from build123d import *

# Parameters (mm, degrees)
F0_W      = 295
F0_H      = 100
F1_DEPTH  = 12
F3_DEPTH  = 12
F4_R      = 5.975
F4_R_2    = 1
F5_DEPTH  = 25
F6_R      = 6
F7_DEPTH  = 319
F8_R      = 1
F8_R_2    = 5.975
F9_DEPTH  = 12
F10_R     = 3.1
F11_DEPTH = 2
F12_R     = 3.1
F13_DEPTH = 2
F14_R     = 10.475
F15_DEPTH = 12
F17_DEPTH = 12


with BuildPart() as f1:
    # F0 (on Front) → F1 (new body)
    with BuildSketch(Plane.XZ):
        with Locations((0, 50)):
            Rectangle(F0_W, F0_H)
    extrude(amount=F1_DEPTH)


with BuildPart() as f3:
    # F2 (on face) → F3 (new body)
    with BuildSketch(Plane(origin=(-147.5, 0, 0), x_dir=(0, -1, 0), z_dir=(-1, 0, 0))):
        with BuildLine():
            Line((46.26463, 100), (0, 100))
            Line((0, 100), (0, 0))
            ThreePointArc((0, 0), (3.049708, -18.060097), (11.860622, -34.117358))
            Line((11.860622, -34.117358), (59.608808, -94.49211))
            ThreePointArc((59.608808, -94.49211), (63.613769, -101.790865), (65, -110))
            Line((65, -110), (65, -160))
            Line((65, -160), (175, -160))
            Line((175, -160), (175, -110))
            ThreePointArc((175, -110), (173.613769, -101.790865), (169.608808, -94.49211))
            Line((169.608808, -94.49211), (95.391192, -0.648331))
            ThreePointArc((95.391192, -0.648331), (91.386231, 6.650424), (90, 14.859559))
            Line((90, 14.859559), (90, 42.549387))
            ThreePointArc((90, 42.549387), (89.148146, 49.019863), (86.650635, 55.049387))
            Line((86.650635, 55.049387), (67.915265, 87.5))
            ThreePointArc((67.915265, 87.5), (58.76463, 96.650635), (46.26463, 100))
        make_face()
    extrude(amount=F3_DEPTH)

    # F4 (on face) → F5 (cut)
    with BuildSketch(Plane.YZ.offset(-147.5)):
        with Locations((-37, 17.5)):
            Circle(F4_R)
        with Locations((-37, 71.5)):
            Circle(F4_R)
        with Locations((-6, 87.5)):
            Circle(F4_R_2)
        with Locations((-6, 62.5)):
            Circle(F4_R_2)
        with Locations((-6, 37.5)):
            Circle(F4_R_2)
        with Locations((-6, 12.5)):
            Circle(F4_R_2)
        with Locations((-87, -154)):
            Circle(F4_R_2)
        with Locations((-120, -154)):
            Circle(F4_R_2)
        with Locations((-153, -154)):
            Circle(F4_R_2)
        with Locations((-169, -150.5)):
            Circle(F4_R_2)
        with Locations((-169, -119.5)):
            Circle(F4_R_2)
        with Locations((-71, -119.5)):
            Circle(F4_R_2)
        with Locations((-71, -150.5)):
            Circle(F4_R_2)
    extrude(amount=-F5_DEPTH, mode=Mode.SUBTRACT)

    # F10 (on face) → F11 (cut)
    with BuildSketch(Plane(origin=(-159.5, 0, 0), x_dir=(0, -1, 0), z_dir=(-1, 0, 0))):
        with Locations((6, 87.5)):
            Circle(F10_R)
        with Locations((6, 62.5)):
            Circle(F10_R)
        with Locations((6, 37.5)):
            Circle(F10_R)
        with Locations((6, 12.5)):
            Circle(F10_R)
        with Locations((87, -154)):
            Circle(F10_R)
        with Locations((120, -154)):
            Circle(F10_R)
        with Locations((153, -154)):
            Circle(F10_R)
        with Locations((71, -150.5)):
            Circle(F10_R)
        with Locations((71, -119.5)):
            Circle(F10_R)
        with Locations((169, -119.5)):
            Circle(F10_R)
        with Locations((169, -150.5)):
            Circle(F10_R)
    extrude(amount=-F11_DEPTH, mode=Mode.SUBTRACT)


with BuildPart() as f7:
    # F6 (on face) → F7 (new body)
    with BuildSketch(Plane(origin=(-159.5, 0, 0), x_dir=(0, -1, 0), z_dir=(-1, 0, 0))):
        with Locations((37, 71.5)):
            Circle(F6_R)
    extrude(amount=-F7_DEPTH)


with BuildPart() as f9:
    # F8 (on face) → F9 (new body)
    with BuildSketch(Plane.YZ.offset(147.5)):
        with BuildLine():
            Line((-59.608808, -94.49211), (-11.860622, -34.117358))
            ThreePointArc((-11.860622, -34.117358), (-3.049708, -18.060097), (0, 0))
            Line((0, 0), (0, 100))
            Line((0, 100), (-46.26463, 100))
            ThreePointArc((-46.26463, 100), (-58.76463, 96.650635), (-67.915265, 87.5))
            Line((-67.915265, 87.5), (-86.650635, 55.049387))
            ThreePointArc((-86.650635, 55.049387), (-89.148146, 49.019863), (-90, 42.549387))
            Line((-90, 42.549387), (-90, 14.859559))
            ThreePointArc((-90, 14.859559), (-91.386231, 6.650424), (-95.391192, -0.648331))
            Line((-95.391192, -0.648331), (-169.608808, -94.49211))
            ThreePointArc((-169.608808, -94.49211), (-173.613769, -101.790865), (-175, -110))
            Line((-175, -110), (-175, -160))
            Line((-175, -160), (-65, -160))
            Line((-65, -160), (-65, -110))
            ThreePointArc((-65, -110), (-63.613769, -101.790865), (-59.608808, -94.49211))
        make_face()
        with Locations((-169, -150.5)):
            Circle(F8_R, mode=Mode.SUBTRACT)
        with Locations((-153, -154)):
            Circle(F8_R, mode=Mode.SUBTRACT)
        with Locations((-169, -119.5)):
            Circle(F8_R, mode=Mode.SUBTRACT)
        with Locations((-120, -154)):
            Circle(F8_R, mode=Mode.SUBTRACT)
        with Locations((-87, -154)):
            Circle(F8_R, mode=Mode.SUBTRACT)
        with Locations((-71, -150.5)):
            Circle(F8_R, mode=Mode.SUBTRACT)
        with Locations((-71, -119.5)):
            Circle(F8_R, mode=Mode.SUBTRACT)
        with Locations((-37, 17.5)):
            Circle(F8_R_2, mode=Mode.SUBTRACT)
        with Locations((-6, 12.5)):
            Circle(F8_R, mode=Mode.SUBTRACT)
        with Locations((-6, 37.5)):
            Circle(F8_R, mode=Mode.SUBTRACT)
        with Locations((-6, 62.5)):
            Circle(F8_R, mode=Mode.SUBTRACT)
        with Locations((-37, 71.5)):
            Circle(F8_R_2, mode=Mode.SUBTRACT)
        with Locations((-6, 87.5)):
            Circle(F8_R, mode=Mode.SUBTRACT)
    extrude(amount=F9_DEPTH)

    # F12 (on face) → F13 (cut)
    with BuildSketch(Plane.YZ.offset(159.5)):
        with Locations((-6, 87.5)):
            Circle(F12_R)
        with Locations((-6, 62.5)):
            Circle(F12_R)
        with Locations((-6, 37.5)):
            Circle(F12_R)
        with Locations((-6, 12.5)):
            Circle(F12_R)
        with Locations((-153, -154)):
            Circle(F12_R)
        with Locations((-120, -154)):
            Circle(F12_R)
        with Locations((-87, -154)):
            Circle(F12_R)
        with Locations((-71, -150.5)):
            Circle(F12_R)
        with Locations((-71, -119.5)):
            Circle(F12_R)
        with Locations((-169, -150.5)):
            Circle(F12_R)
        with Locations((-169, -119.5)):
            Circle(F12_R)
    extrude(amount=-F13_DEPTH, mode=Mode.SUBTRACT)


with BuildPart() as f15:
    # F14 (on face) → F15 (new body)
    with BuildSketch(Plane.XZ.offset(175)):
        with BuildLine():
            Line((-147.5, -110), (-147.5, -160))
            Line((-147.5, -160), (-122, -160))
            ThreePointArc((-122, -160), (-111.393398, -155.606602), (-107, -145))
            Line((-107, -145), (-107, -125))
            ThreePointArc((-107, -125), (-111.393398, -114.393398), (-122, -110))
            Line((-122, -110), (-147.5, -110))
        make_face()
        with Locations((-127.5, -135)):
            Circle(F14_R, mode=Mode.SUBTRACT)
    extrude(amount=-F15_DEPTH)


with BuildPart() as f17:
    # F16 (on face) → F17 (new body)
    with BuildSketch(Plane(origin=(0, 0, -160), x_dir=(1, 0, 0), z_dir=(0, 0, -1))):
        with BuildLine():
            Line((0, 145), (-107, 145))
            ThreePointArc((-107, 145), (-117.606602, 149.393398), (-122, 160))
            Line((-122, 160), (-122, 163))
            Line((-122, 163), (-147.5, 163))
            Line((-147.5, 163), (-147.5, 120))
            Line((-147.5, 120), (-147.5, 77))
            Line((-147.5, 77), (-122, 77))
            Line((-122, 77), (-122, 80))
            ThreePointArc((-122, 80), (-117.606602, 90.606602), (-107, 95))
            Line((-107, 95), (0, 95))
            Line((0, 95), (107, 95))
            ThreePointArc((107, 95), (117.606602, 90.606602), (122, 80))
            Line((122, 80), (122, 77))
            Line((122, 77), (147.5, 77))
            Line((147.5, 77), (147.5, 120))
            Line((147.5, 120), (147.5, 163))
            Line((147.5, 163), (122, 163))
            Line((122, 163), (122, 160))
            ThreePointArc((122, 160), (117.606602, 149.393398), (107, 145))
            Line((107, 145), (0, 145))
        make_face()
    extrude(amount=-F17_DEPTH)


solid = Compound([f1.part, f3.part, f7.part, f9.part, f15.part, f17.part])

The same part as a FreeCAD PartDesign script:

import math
import FreeCAD as App
import Part
import Sketcher
from FreeCAD import Vector
Q = App.Units.Quantity


def add_polygon(sketch, points):
    """Adds a closed chain of lines whose ends are joined by coincident constraints."""
    first, n = sketch.GeometryCount, len(points)
    for a, b in zip(points, points[1:] + points[:1]):
        sketch.addGeometry(Part.LineSegment(App.Vector(*a, 0), App.Vector(*b, 0)), False)
    for i in range(n):
        sketch.addConstraint(Sketcher.Constraint("Coincident", first + i, 2, first + (i + 1) % n, 1))

doc = App.newDocument("Part")
body = doc.addObject("PartDesign::Body", "Body")

# Sketch on XZ plane
sketch1 = body.newObject("Sketcher::SketchObject", "Sketch")
sketch1.AttachmentSupport = (doc.getObject("XZ_Plane"), [""])
sketch1.MapMode = "FlatFace"
add_polygon(sketch1, [(-148, 100), (-148, 0), (148, 0), (148, 100)])  # lines 0-3
sketch1.addConstraint([
    Sketcher.Constraint("Vertical", 0),
    Sketcher.Constraint("Horizontal", 1),
    Sketcher.Constraint("Vertical", 2),
    Sketcher.Constraint("Horizontal", 3),
    Sketcher.Constraint("Symmetric", 0, 2, 1, 2, -1, 1),
    Sketcher.Constraint("DistanceX", 1, 1, 1, 2, Q("295 mm")),
    Sketcher.Constraint("DistanceY", 0, 2, 0, 1, Q("100 mm")),
])
pad1 = body.newObject("PartDesign::Pad", "Pad")
pad1.Profile = sketch1
pad1.Length = 12
body2 = doc.addObject("PartDesign::Body", "Body001")

# Sketch on YZ plane
sketch2 = body2.newObject("Sketcher::SketchObject", "Sketch001")
sketch2.AttachmentSupport = (doc.getObject("YZ_Plane001"), [""])
sketch2.MapMode = "FlatFace"
sketch2.AttachmentOffset = App.Placement(Vector(0, 0, -147.5), App.Rotation())
sketch2.addGeometry([
    Part.LineSegment(Vector(-46, 100, 0), Vector(0, 100, 0)),  # 0
    Part.LineSegment(Vector(0, 100, 0), Vector(0, 0, 0)),  # 1
    Part.ArcOfCircle(Part.Circle(Vector(-55, 0, 0), Vector(0, 0, 1), 55), math.radians(-38), math.radians(0)),  # 2
    Part.LineSegment(Vector(-12, -34, 0), Vector(-60, -94, 0)),  # 3
    Part.ArcOfCircle(Part.Circle(Vector(-40, -110, 0), Vector(0, 0, 1), 25), math.radians(142), math.radians(180)),  # 4
    Part.LineSegment(Vector(-65, -110, 0), Vector(-65, -160, 0)),  # 5
    Part.LineSegment(Vector(-65, -160, 0), Vector(-175, -160, 0)),  # 6
    Part.LineSegment(Vector(-175, -160, 0), Vector(-175, -110, 0)),  # 7
    Part.ArcOfCircle(Part.Circle(Vector(-150, -110, 0), Vector(0, 0, 1), 25), math.radians(142), math.radians(180)),  # 8
    Part.LineSegment(Vector(-170, -94, 0), Vector(-95, -1, 0)),  # 9
    Part.ArcOfCircle(Part.Circle(Vector(-115, 15, 0), Vector(0, 0, 1), 25), math.radians(-38), math.radians(0)),  # 10
    Part.LineSegment(Vector(-90, 15, 0), Vector(-90, 43, 0)),  # 11
    Part.ArcOfCircle(Part.Circle(Vector(-65, 43, 0), Vector(0, 0, 1), 25), math.radians(150), math.radians(180)),  # 12
    Part.LineSegment(Vector(-87, 55, 0), Vector(-68, 88, 0)),  # 13
    Part.ArcOfCircle(Part.Circle(Vector(-46, 75, 0), Vector(0, 0, 1), 25), math.radians(90), math.radians(150)),  # 14
], False)
sketch2.addConstraint([
    Sketcher.Constraint("Coincident", 0, 2, 1, 1),
    Sketcher.Constraint("Tangent", 1, 2, 2, 2),
    Sketcher.Constraint("Tangent", 2, 1, 3, 1),
    Sketcher.Constraint("Tangent", 3, 2, 4, 1),
    Sketcher.Constraint("Tangent", 4, 2, 5, 1),
    Sketcher.Constraint("Coincident", 5, 2, 6, 1),
    Sketcher.Constraint("Coincident", 6, 2, 7, 1),
    Sketcher.Constraint("Tangent", 7, 2, 8, 2),
    Sketcher.Constraint("Tangent", 8, 1, 9, 1),
    Sketcher.Constraint("Tangent", 9, 2, 10, 1),
    Sketcher.Constraint("Tangent", 10, 2, 11, 1),
    Sketcher.Constraint("Tangent", 11, 2, 12, 2),
    Sketcher.Constraint("Tangent", 12, 1, 13, 1),
    Sketcher.Constraint("Tangent", 13, 2, 14, 2),
    Sketcher.Constraint("Tangent", 14, 1, 0, 1),
    Sketcher.Constraint("Horizontal", 0),
    Sketcher.Constraint("Vertical", 1),
    Sketcher.Constraint("Vertical", 5),
    Sketcher.Constraint("Horizontal", 6),
    Sketcher.Constraint("Vertical", 7),
    Sketcher.Constraint("Vertical", 11),
    Sketcher.Constraint("Coincident", 1, 2, -1, 1),
    Sketcher.Constraint("Equal", 4, 8),
    Sketcher.Constraint("Equal", 8, 10),
    Sketcher.Constraint("Parallel", 3, 9),
    Sketcher.Constraint("Horizontal", 4, 3, 8, 3),
    Sketcher.Constraint("Radius", 14, Q("25 mm")),
    Sketcher.Constraint("DistanceX", 6, 2, 6, 1, Q("110 mm")),
    Sketcher.Constraint("DistanceY", 1, 2, 1, 1, Q("100 mm")),
    Sketcher.Constraint("DistanceY", 5, 2, 5, 1, Q("50 mm")),
    Sketcher.Constraint("Angle", 13, Q("60 deg")),
    Sketcher.Constraint("DistanceX", 4, 2, -1, 1, Q("65 mm")),
    Sketcher.Constraint("DistanceY", 4, 2, -1, 1, Q("110 mm")),
    Sketcher.Constraint("DistanceX", 10, 2, -1, 1, Q("90 mm")),
    Sketcher.Constraint("DistanceY", 11, 2, 12, 1, Q("12.5 mm")),
    Sketcher.Constraint("Radius", 2, Q("55.000013 mm")),
    Sketcher.Constraint("Radius", 4, Q("25.000006 mm")),
    Sketcher.Constraint("DistanceX", 0, 1, 0, 2, Q("46.26463 mm")),
])
pad2 = body2.newObject("PartDesign::Pad", "Pad001")
pad2.Profile = sketch2
pad2.Length = 12
pad2.Reversed = True

# Sketch on YZ plane
sketch3 = body2.newObject("Sketcher::SketchObject", "Sketch002")
sketch3.AttachmentSupport = (doc.getObject("YZ_Plane001"), [""])
sketch3.MapMode = "FlatFace"
sketch3.AttachmentOffset = App.Placement(Vector(0, 0, -147.5), App.Rotation())
sketch3.addGeometry([
    Part.Circle(Vector(-37, 17.5, 0), Vector(0, 0, 1), 6),  # 0
    Part.Circle(Vector(-37, 71.5, 0), Vector(0, 0, 1), 6),  # 1
    Part.Circle(Vector(-6, 87.5, 0), Vector(0, 0, 1), 1),  # 2
    Part.Circle(Vector(-6, 62.5, 0), Vector(0, 0, 1), 1),  # 3
    Part.Circle(Vector(-6, 37.5, 0), Vector(0, 0, 1), 1),  # 4
    Part.Circle(Vector(-6, 12.5, 0), Vector(0, 0, 1), 1),  # 5
    Part.Circle(Vector(-87, -154, 0), Vector(0, 0, 1), 1),  # 6
    Part.Circle(Vector(-120, -154, 0), Vector(0, 0, 1), 1),  # 7
    Part.Circle(Vector(-153, -154, 0), Vector(0, 0, 1), 1),  # 8
    Part.Circle(Vector(-169, -150.5, 0), Vector(0, 0, 1), 1),  # 9
    Part.Circle(Vector(-169, -119.5, 0), Vector(0, 0, 1), 1),  # 10
    Part.Circle(Vector(-71, -119.5, 0), Vector(0, 0, 1), 1),  # 11
    Part.Circle(Vector(-71, -150.5, 0), Vector(0, 0, 1), 1),  # 12
], False)
sketch3.addConstraint([
    Sketcher.Constraint("Equal", 0, 1),
    Sketcher.Constraint("Equal", 2, 3),
    Sketcher.Constraint("Equal", 3, 4),
    Sketcher.Constraint("Equal", 4, 5),
    Sketcher.Constraint("Equal", 5, 6),
    Sketcher.Constraint("Equal", 6, 7),
    Sketcher.Constraint("Equal", 7, 8),
    Sketcher.Constraint("Equal", 8, 9),
    Sketcher.Constraint("Equal", 9, 10),
    Sketcher.Constraint("Equal", 10, 11),
    Sketcher.Constraint("Equal", 11, 12),
    Sketcher.Constraint("Horizontal", 6, 3, 7, 3),
    Sketcher.Constraint("Horizontal", 7, 3, 8, 3),
    Sketcher.Constraint("Horizontal", 10, 3, 11, 3),
    Sketcher.Constraint("Horizontal", 9, 3, 12, 3),
    Sketcher.Constraint("Vertical", 0, 3, 1, 3),
    Sketcher.Constraint("Vertical", 2, 3, 3, 3),
    Sketcher.Constraint("Vertical", 3, 3, 4, 3),
    Sketcher.Constraint("Vertical", 4, 3, 5, 3),
    Sketcher.Constraint("Vertical", 9, 3, 10, 3),
    Sketcher.Constraint("Vertical", 11, 3, 12, 3),
    Sketcher.Constraint("Diameter", 2, Q("2 mm")),
    Sketcher.Constraint("Diameter", 0, Q("11.95 mm")),
    Sketcher.Constraint("DistanceX", 0, 3, -1, 1, Q("37 mm")),
    Sketcher.Constraint("DistanceX", 2, 3, -1, 1, Q("6 mm")),
    Sketcher.Constraint("DistanceX", 6, 3, -1, 1, Q("87 mm")),
    Sketcher.Constraint("DistanceY", 6, 3, -1, 1, Q("154 mm")),
    Sketcher.Constraint("DistanceX", 7, 3, -1, 1, Q("120 mm")),
    Sketcher.Constraint("DistanceX", 8, 3, -1, 1, Q("153 mm")),
    Sketcher.Constraint("DistanceX", 9, 3, -1, 1, Q("169 mm")),
    Sketcher.Constraint("DistanceX", 11, 3, -1, 1, Q("71 mm")),
    Sketcher.Constraint("DistanceY", 0, 3, 1, 3, Q("54 mm")),
    Sketcher.Constraint("DistanceY", 1, 3, 2, 3, Q("16 mm")),
    Sketcher.Constraint("DistanceY", 3, 3, 2, 3, Q("25 mm")),
    Sketcher.Constraint("DistanceY", 4, 3, 3, 3, Q("25 mm")),
    Sketcher.Constraint("DistanceY", 5, 3, 4, 3, Q("25 mm")),
    Sketcher.Constraint("DistanceY", 9, 3, 0, 3, Q("168 mm")),
    Sketcher.Constraint("DistanceY", 9, 3, 10, 3, Q("31 mm")),
    Sketcher.Constraint("DistanceY", -1, 1, 0, 3, Q("17.5 mm")),
])
pocket1 = body2.newObject("PartDesign::Pocket", "Pocket")
pocket1.Profile = sketch3
pocket1.Length = 25

# Sketch on YZ plane
sketch4 = body2.newObject("Sketcher::SketchObject", "Sketch003")
sketch4.AttachmentSupport = (doc.getObject("YZ_Plane001"), [""])
sketch4.MapMode = "FlatFace"
sketch4.AttachmentOffset = App.Placement(Vector(0, 0, -159.5), App.Rotation())
sketch4.addGeometry([
    Part.Circle(Vector(-6, 87.5, 0), Vector(0, 0, 1), 3.1),  # 0
    Part.Circle(Vector(-6, 62.5, 0), Vector(0, 0, 1), 3.1),  # 1
    Part.Circle(Vector(-6, 37.5, 0), Vector(0, 0, 1), 3.1),  # 2
    Part.Circle(Vector(-6, 12.5, 0), Vector(0, 0, 1), 3.1),  # 3
    Part.Circle(Vector(-87, -154, 0), Vector(0, 0, 1), 3.1),  # 4
    Part.Circle(Vector(-120, -154, 0), Vector(0, 0, 1), 3.1),  # 5
    Part.Circle(Vector(-153, -154, 0), Vector(0, 0, 1), 3.1),  # 6
    Part.Circle(Vector(-71, -150.5, 0), Vector(0, 0, 1), 3.1),  # 7
    Part.Circle(Vector(-71, -119.5, 0), Vector(0, 0, 1), 3.1),  # 8
    Part.Circle(Vector(-169, -119.5, 0), Vector(0, 0, 1), 3.1),  # 9
    Part.Circle(Vector(-169, -150.5, 0), Vector(0, 0, 1), 3.1),  # 10
], False)
sketch4.addConstraint([
    Sketcher.Constraint("Equal", 0, 1),
    Sketcher.Constraint("Equal", 1, 2),
    Sketcher.Constraint("Equal", 2, 3),
    Sketcher.Constraint("Equal", 3, 4),
    Sketcher.Constraint("Equal", 4, 5),
    Sketcher.Constraint("Equal", 5, 6),
    Sketcher.Constraint("Equal", 6, 7),
    Sketcher.Constraint("Equal", 7, 8),
    Sketcher.Constraint("Equal", 8, 9),
    Sketcher.Constraint("Equal", 9, 10),
    Sketcher.Constraint("Horizontal", 4, 3, 5, 3),
    Sketcher.Constraint("Horizontal", 5, 3, 6, 3),
    Sketcher.Constraint("Horizontal", 8, 3, 9, 3),
    Sketcher.Constraint("Horizontal", 7, 3, 10, 3),
    Sketcher.Constraint("Vertical", 0, 3, 1, 3),
    Sketcher.Constraint("Vertical", 1, 3, 2, 3),
    Sketcher.Constraint("Vertical", 2, 3, 3, 3),
    Sketcher.Constraint("Vertical", 7, 3, 8, 3),
    Sketcher.Constraint("Vertical", 9, 3, 10, 3),
    Sketcher.Constraint("Diameter", 0, Q("6.2 mm")),
    Sketcher.Constraint("DistanceX", 0, 3, -1, 1, Q("6 mm")),
    Sketcher.Constraint("DistanceX", 4, 3, -1, 1, Q("87 mm")),
    Sketcher.Constraint("DistanceY", 4, 3, -1, 1, Q("154 mm")),
    Sketcher.Constraint("DistanceX", 5, 3, -1, 1, Q("120 mm")),
    Sketcher.Constraint("DistanceX", 6, 3, -1, 1, Q("153 mm")),
    Sketcher.Constraint("DistanceX", 7, 3, -1, 1, Q("71 mm")),
    Sketcher.Constraint("DistanceX", 9, 3, -1, 1, Q("169 mm")),
    Sketcher.Constraint("DistanceY", 1, 3, 0, 3, Q("25 mm")),
    Sketcher.Constraint("DistanceY", 2, 3, 1, 3, Q("25 mm")),
    Sketcher.Constraint("DistanceY", 3, 3, 2, 3, Q("25 mm")),
    Sketcher.Constraint("DistanceY", 7, 3, 3, 3, Q("163 mm")),
    Sketcher.Constraint("DistanceY", 7, 3, 8, 3, Q("31 mm")),
    Sketcher.Constraint("DistanceY", -1, 1, 0, 3, Q("87.5 mm")),
])
pocket2 = body2.newObject("PartDesign::Pocket", "Pocket001")
pocket2.Profile = sketch4
pocket2.Length = 2
pocket2.Reversed = True
body3 = doc.addObject("PartDesign::Body", "Body002")

# Sketch on YZ plane
sketch5 = body3.newObject("Sketcher::SketchObject", "Sketch004")
sketch5.AttachmentSupport = (doc.getObject("YZ_Plane002"), [""])
sketch5.MapMode = "FlatFace"
sketch5.AttachmentOffset = App.Placement(Vector(0, 0, -159.5), App.Rotation())
sketch5.addGeometry(Part.Circle(Vector(-37, 72, 0), Vector(0, 0, 1), 6), False)
sketch5.addConstraint([
    Sketcher.Constraint("Diameter", 0, Q("12 mm")),
    Sketcher.Constraint("DistanceX", 0, 3, -1, 1, Q("37 mm")),
    Sketcher.Constraint("DistanceY", -1, 1, 0, 3, Q("71.5 mm")),
])
pad3 = body3.newObject("PartDesign::Pad", "Pad002")
pad3.Profile = sketch5
pad3.Length = 319
body4 = doc.addObject("PartDesign::Body", "Body003")

# Sketch on YZ plane
sketch6 = body4.newObject("Sketcher::SketchObject", "Sketch005")
sketch6.AttachmentSupport = (doc.getObject("YZ_Plane003"), [""])
sketch6.MapMode = "FlatFace"
sketch6.AttachmentOffset = App.Placement(Vector(0, 0, 147.5), App.Rotation())
sketch6.addGeometry([
    Part.LineSegment(Vector(-59.6, -94.5, 0), Vector(-11.9, -34.1, 0)),  # 0
    Part.ArcOfCircle(Part.Circle(Vector(-55, 0, 0), Vector(0, 0, 1), 55), math.radians(-38), math.radians(0)),  # 1
    Part.LineSegment(Vector(0, 0, 0), Vector(0, 100, 0)),  # 2
    Part.LineSegment(Vector(0, 100, 0), Vector(-46.3, 100, 0)),  # 3
    Part.ArcOfCircle(Part.Circle(Vector(-46.3, 75, 0), Vector(0, 0, 1), 25), math.radians(90), math.radians(150)),  # 4
    Part.LineSegment(Vector(-67.9, 87.5, 0), Vector(-86.7, 55, 0)),  # 5
    Part.ArcOfCircle(Part.Circle(Vector(-65, 42.5, 0), Vector(0, 0, 1), 25), math.radians(150), math.radians(180)),  # 6
    Part.LineSegment(Vector(-90, 42.5, 0), Vector(-90, 14.9, 0)),  # 7
    Part.ArcOfCircle(Part.Circle(Vector(-115, 14.9, 0), Vector(0, 0, 1), 25), math.radians(-38), math.radians(0)),  # 8
    Part.LineSegment(Vector(-95.4, -0.6, 0), Vector(-169.6, -94.5, 0)),  # 9
    Part.ArcOfCircle(Part.Circle(Vector(-150, -110, 0), Vector(0, 0, 1), 25), math.radians(142), math.radians(180)),  # 10
    Part.LineSegment(Vector(-175, -110, 0), Vector(-175, -160, 0)),  # 11
    Part.LineSegment(Vector(-175, -160, 0), Vector(-65, -160, 0)),  # 12
    Part.LineSegment(Vector(-65, -160, 0), Vector(-65, -110, 0)),  # 13
    Part.ArcOfCircle(Part.Circle(Vector(-40, -110, 0), Vector(0, 0, 1), 25), math.radians(142), math.radians(180)),  # 14
    Part.Circle(Vector(-169, -150.5, 0), Vector(0, 0, 1), 1),  # 15
    Part.Circle(Vector(-153, -154, 0), Vector(0, 0, 1), 1),  # 16
    Part.Circle(Vector(-169, -119.5, 0), Vector(0, 0, 1), 1),  # 17
    Part.Circle(Vector(-120, -154, 0), Vector(0, 0, 1), 1),  # 18
    Part.Circle(Vector(-87, -154, 0), Vector(0, 0, 1), 1),  # 19
    Part.Circle(Vector(-71, -150.5, 0), Vector(0, 0, 1), 1),  # 20
    Part.Circle(Vector(-71, -119.5, 0), Vector(0, 0, 1), 1),  # 21
    Part.Circle(Vector(-37, 17.5, 0), Vector(0, 0, 1), 6),  # 22
    Part.Circle(Vector(-6, 12.5, 0), Vector(0, 0, 1), 1),  # 23
    Part.Circle(Vector(-6, 37.5, 0), Vector(0, 0, 1), 1),  # 24
    Part.Circle(Vector(-37, 71.5, 0), Vector(0, 0, 1), 6),  # 25
    Part.Circle(Vector(-6, 62.5, 0), Vector(0, 0, 1), 1),  # 26
    Part.Circle(Vector(-6, 87.5, 0), Vector(0, 0, 1), 1),  # 27
], False)
sketch6.addConstraint([
    Sketcher.Constraint("Tangent", 0, 2, 1, 1),
    Sketcher.Constraint("Tangent", 1, 2, 2, 1),
    Sketcher.Constraint("Coincident", 2, 2, 3, 1),
    Sketcher.Constraint("Tangent", 3, 2, 4, 1),
    Sketcher.Constraint("Tangent", 4, 2, 5, 1),
    Sketcher.Constraint("Tangent", 5, 2, 6, 1),
    Sketcher.Constraint("Tangent", 6, 2, 7, 1),
    Sketcher.Constraint("Tangent", 7, 2, 8, 2),
    Sketcher.Constraint("Tangent", 8, 1, 9, 1),
    Sketcher.Constraint("Tangent", 9, 2, 10, 1),
    Sketcher.Constraint("Tangent", 10, 2, 11, 1),
    Sketcher.Constraint("Coincident", 11, 2, 12, 1),
    Sketcher.Constraint("Coincident", 12, 2, 13, 1),
    Sketcher.Constraint("Tangent", 13, 2, 14, 2),
    Sketcher.Constraint("Tangent", 14, 1, 0, 1),
    Sketcher.Constraint("Vertical", 2),
    Sketcher.Constraint("Horizontal", 3),
    Sketcher.Constraint("Vertical", 7),
    Sketcher.Constraint("Vertical", 11),
    Sketcher.Constraint("Horizontal", 12),
    Sketcher.Constraint("Vertical", 13),
    Sketcher.Constraint("Coincident", 1, 2, -1, 1),
    Sketcher.Constraint("Equal", 8, 10),
    Sketcher.Constraint("Equal", 10, 14),
    Sketcher.Constraint("Equal", 15, 16),
    Sketcher.Constraint("Equal", 16, 17),
    Sketcher.Constraint("Equal", 17, 18),
    Sketcher.Constraint("Equal", 18, 19),
    Sketcher.Constraint("Equal", 19, 20),
    Sketcher.Constraint("Equal", 20, 21),
    Sketcher.Constraint("Equal", 21, 23),
    Sketcher.Constraint("Equal", 23, 24),
    Sketcher.Constraint("Equal", 22, 25),
    Sketcher.Constraint("Equal", 24, 26),
    Sketcher.Constraint("Equal", 26, 27),
    Sketcher.Constraint("Parallel", 0, 9),
    Sketcher.Constraint("Horizontal", 10, 3, 14, 3),
    Sketcher.Constraint("Horizontal", 16, 3, 18, 3),
    Sketcher.Constraint("Horizontal", 18, 3, 19, 3),
    Sketcher.Constraint("Horizontal", 15, 3, 20, 3),
    Sketcher.Constraint("Horizontal", 17, 3, 21, 3),
    Sketcher.Constraint("Horizontal", 27, 3, 4, 2),
    Sketcher.Constraint("Vertical", 15, 3, 17, 3),
    Sketcher.Constraint("Vertical", 20, 3, 21, 3),
    Sketcher.Constraint("Vertical", 23, 3, 24, 3),
    Sketcher.Constraint("Vertical", 22, 3, 25, 3),
    Sketcher.Constraint("Vertical", 24, 3, 26, 3),
    Sketcher.Constraint("Vertical", 26, 3, 27, 3),
    Sketcher.Constraint("Diameter", 15, Q("2 mm")),
    Sketcher.Constraint("Radius", 4, Q("25 mm")),
    Sketcher.Constraint("Diameter", 22, Q("11.95 mm")),
    Sketcher.Constraint("DistanceX", 12, 1, 12, 2, Q("110 mm")),
    Sketcher.Constraint("DistanceY", 2, 1, 2, 2, Q("100 mm")),
    Sketcher.Constraint("DistanceY", 11, 2, 11, 1, Q("50 mm")),
    Sketcher.Constraint("Angle", 5, Q("-120 deg")),
    Sketcher.Constraint("DistanceX", 15, 3, -1, 1, Q("169 mm")),
    Sketcher.Constraint("DistanceX", 16, 3, -1, 1, Q("153 mm")),
    Sketcher.Constraint("DistanceY", 16, 3, -1, 1, Q("154 mm")),
    Sketcher.Constraint("DistanceX", 18, 3, -1, 1, Q("120 mm")),
    Sketcher.Constraint("DistanceX", 19, 3, -1, 1, Q("87 mm")),
    Sketcher.Constraint("DistanceX", 20, 3, -1, 1, Q("71 mm")),
    Sketcher.Constraint("DistanceX", 22, 3, -1, 1, Q("37 mm")),
    Sketcher.Constraint("DistanceX", 23, 3, -1, 1, Q("6 mm")),
    Sketcher.Constraint("DistanceX", 6, 2, -1, 1, Q("90 mm")),
    Sketcher.Constraint("DistanceX", 10, 2, -1, 1, Q("175 mm")),
    Sketcher.Constraint("DistanceY", 10, 2, -1, 1, Q("110 mm")),
    Sketcher.Constraint("DistanceY", 15, 3, 17, 3, Q("31 mm")),
    Sketcher.Constraint("DistanceY", 23, 3, 22, 3, Q("5 mm")),
    Sketcher.Constraint("DistanceY", 23, 3, 24, 3, Q("25 mm")),
    Sketcher.Constraint("DistanceY", 24, 3, 25, 3, Q("34 mm")),
    Sketcher.Constraint("DistanceY", 24, 3, 26, 3, Q("25 mm")),
    Sketcher.Constraint("DistanceY", 26, 3, 27, 3, Q("25 mm")),
    Sketcher.Constraint("DistanceY", 15, 3, -1, 1, Q("150.5 mm")),
    Sketcher.Constraint("DistanceY", 6, 2, 5, 2, Q("12.5 mm")),
    Sketcher.Constraint("Radius", 1, Q("55.000013 mm")),
    Sketcher.Constraint("Radius", 8, Q("25.000006 mm")),
    Sketcher.Constraint("DistanceX", 3, 2, 3, 1, Q("46.26463 mm")),
])
pad4 = body4.newObject("PartDesign::Pad", "Pad003")
pad4.Profile = sketch6
pad4.Length = 12

# Sketch on YZ plane
sketch7 = body4.newObject("Sketcher::SketchObject", "Sketch006")
sketch7.AttachmentSupport = (doc.getObject("YZ_Plane003"), [""])
sketch7.MapMode = "FlatFace"
sketch7.AttachmentOffset = App.Placement(Vector(0, 0, 159.5), App.Rotation())
sketch7.addGeometry([
    Part.Circle(Vector(-6, 87.5, 0), Vector(0, 0, 1), 3.1),  # 0
    Part.Circle(Vector(-6, 62.5, 0), Vector(0, 0, 1), 3.1),  # 1
    Part.Circle(Vector(-6, 37.5, 0), Vector(0, 0, 1), 3.1),  # 2
    Part.Circle(Vector(-6, 12.5, 0), Vector(0, 0, 1), 3.1),  # 3
    Part.Circle(Vector(-153, -154, 0), Vector(0, 0, 1), 3.1),  # 4
    Part.Circle(Vector(-120, -154, 0), Vector(0, 0, 1), 3.1),  # 5
    Part.Circle(Vector(-87, -154, 0), Vector(0, 0, 1), 3.1),  # 6
    Part.Circle(Vector(-71, -150.5, 0), Vector(0, 0, 1), 3.1),  # 7
    Part.Circle(Vector(-71, -119.5, 0), Vector(0, 0, 1), 3.1),  # 8
    Part.Circle(Vector(-169, -150.5, 0), Vector(0, 0, 1), 3.1),  # 9
    Part.Circle(Vector(-169, -119.5, 0), Vector(0, 0, 1), 3.1),  # 10
], False)
sketch7.addConstraint([
    Sketcher.Constraint("Equal", 0, 1),
    Sketcher.Constraint("Equal", 1, 2),
    Sketcher.Constraint("Equal", 2, 3),
    Sketcher.Constraint("Equal", 3, 4),
    Sketcher.Constraint("Equal", 4, 5),
    Sketcher.Constraint("Equal", 5, 6),
    Sketcher.Constraint("Equal", 6, 7),
    Sketcher.Constraint("Equal", 7, 8),
    Sketcher.Constraint("Equal", 8, 9),
    Sketcher.Constraint("Equal", 9, 10),
    Sketcher.Constraint("Horizontal", 4, 3, 5, 3),
    Sketcher.Constraint("Horizontal", 5, 3, 6, 3),
    Sketcher.Constraint("Horizontal", 7, 3, 9, 3),
    Sketcher.Constraint("Horizontal", 8, 3, 10, 3),
    Sketcher.Constraint("Vertical", 0, 3, 1, 3),
    Sketcher.Constraint("Vertical", 1, 3, 2, 3),
    Sketcher.Constraint("Vertical", 2, 3, 3, 3),
    Sketcher.Constraint("Vertical", 7, 3, 8, 3),
    Sketcher.Constraint("Vertical", 9, 3, 10, 3),
    Sketcher.Constraint("Diameter", 0, Q("6.2 mm")),
    Sketcher.Constraint("DistanceX", 0, 3, -1, 1, Q("6 mm")),
    Sketcher.Constraint("DistanceX", 4, 3, -1, 1, Q("153 mm")),
    Sketcher.Constraint("DistanceY", 4, 3, -1, 1, Q("154 mm")),
    Sketcher.Constraint("DistanceX", 5, 3, -1, 1, Q("120 mm")),
    Sketcher.Constraint("DistanceX", 6, 3, -1, 1, Q("87 mm")),
    Sketcher.Constraint("DistanceX", 7, 3, -1, 1, Q("71 mm")),
    Sketcher.Constraint("DistanceX", 9, 3, -1, 1, Q("169 mm")),
    Sketcher.Constraint("DistanceY", 1, 3, 0, 3, Q("25 mm")),
    Sketcher.Constraint("DistanceY", 2, 3, 1, 3, Q("25 mm")),
    Sketcher.Constraint("DistanceY", 3, 3, 2, 3, Q("25 mm")),
    Sketcher.Constraint("DistanceY", 7, 3, 3, 3, Q("163 mm")),
    Sketcher.Constraint("DistanceY", 7, 3, 8, 3, Q("31 mm")),
    Sketcher.Constraint("DistanceY", -1, 1, 0, 3, Q("87.5 mm")),
])
pocket3 = body4.newObject("PartDesign::Pocket", "Pocket002")
pocket3.Profile = sketch7
pocket3.Length = 2
body5 = doc.addObject("PartDesign::Body", "Body004")

# Sketch on XZ plane
sketch8 = body5.newObject("Sketcher::SketchObject", "Sketch007")
sketch8.AttachmentSupport = (doc.getObject("XZ_Plane004"), [""])
sketch8.MapMode = "FlatFace"
sketch8.AttachmentOffset = App.Placement(Vector(0, 0, 175), App.Rotation())
sketch8.addGeometry([
    Part.LineSegment(Vector(-148, -110, 0), Vector(-148, -160, 0)),  # 0
    Part.LineSegment(Vector(-148, -160, 0), Vector(-122, -160, 0)),  # 1
    Part.ArcOfCircle(Part.Circle(Vector(-122, -145, 0), Vector(0, 0, 1), 15), math.radians(-90), math.radians(0)),  # 2
    Part.LineSegment(Vector(-107, -145, 0), Vector(-107, -125, 0)),  # 3
    Part.ArcOfCircle(Part.Circle(Vector(-122, -125, 0), Vector(0, 0, 1), 15), math.radians(0), math.radians(90)),  # 4
    Part.LineSegment(Vector(-122, -110, 0), Vector(-148, -110, 0)),  # 5
    Part.Circle(Vector(-128, -135, 0), Vector(0, 0, 1), 10),  # 6
], False)
sketch8.addConstraint([
    Sketcher.Constraint("Coincident", 0, 2, 1, 1),
    Sketcher.Constraint("Tangent", 1, 2, 2, 1),
    Sketcher.Constraint("Tangent", 2, 2, 3, 1),
    Sketcher.Constraint("Tangent", 3, 2, 4, 1),
    Sketcher.Constraint("Tangent", 4, 2, 5, 1),
    Sketcher.Constraint("Coincident", 5, 2, 0, 1),
    Sketcher.Constraint("Vertical", 0),
    Sketcher.Constraint("Horizontal", 1),
    Sketcher.Constraint("Vertical", 3),
    Sketcher.Constraint("Horizontal", 5),
    Sketcher.Constraint("Equal", 2, 4),
    Sketcher.Constraint("Radius", 2, Q("14.999999 mm")),
    Sketcher.Constraint("Diameter", 6, Q("20.95 mm")),
    Sketcher.Constraint("DistanceY", 0, 2, 0, 1, Q("50 mm")),
    Sketcher.Constraint("DistanceX", 1, 1, 1, 2, Q("25.5 mm")),
    Sketcher.Constraint("DistanceX", 2, 3, -1, 1, Q("121.999999 mm")),
    Sketcher.Constraint("DistanceY", 2, 3, -1, 1, Q("145.000001 mm")),
    Sketcher.Constraint("DistanceY", 6, 3, -1, 1, Q("135 mm")),
    Sketcher.Constraint("DistanceX", 0, 2, 6, 3, Q("20 mm")),
])
pad5 = body5.newObject("PartDesign::Pad", "Pad004")
pad5.Profile = sketch8
pad5.Length = 12
pad5.Reversed = True
body6 = doc.addObject("PartDesign::Body", "Body005")

# Sketch on XY plane
sketch9 = body6.newObject("Sketcher::SketchObject", "Sketch008")
sketch9.AttachmentSupport = (doc.getObject("XY_Plane005"), [""])
sketch9.MapMode = "FlatFace"
sketch9.AttachmentOffset = App.Placement(Vector(0, 0, -160), App.Rotation())
sketch9.addGeometry([
    Part.ArcOfCircle(Part.Circle(Vector(-107, -160, 0), Vector(0, 0, 1), 15), math.radians(90), math.radians(180)),  # 0
    Part.LineSegment(Vector(-122, -160, 0), Vector(-122, -163, 0)),  # 1
    Part.LineSegment(Vector(-122, -163, 0), Vector(-147.5, -163, 0)),  # 2
    Part.LineSegment(Vector(-147.5, -163, 0), Vector(-147.5, -77, 0)),  # 3
    Part.LineSegment(Vector(-147.5, -77, 0), Vector(-122, -77, 0)),  # 4
    Part.LineSegment(Vector(-122, -77, 0), Vector(-122, -80, 0)),  # 5
    Part.ArcOfCircle(Part.Circle(Vector(-107, -80, 0), Vector(0, 0, 1), 15), math.radians(180), math.radians(270)),  # 6
    Part.LineSegment(Vector(-107, -95, 0), Vector(107, -95, 0)),  # 7
    Part.ArcOfCircle(Part.Circle(Vector(107, -80, 0), Vector(0, 0, 1), 15), math.radians(-90), math.radians(0)),  # 8
    Part.LineSegment(Vector(122, -80, 0), Vector(122, -77, 0)),  # 9
    Part.LineSegment(Vector(122, -77, 0), Vector(147.5, -77, 0)),  # 10
    Part.LineSegment(Vector(147.5, -77, 0), Vector(147.5, -163, 0)),  # 11
    Part.LineSegment(Vector(147.5, -163, 0), Vector(122, -163, 0)),  # 12
    Part.LineSegment(Vector(122, -163, 0), Vector(122, -160, 0)),  # 13
    Part.ArcOfCircle(Part.Circle(Vector(107, -160, 0), Vector(0, 0, 1), 15), math.radians(0), math.radians(90)),  # 14
    Part.LineSegment(Vector(107, -145, 0), Vector(-107, -145, 0)),  # 15
], False)
sketch9.addConstraint([
    Sketcher.Constraint("Tangent", 0, 2, 1, 1),
    Sketcher.Constraint("Coincident", 1, 2, 2, 1),
    Sketcher.Constraint("Coincident", 2, 2, 3, 1),
    Sketcher.Constraint("Coincident", 3, 2, 4, 1),
    Sketcher.Constraint("Coincident", 4, 2, 5, 1),
    Sketcher.Constraint("Tangent", 5, 2, 6, 1),
    Sketcher.Constraint("Tangent", 6, 2, 7, 1),
    Sketcher.Constraint("Tangent", 7, 2, 8, 1),
    Sketcher.Constraint("Tangent", 8, 2, 9, 1),
    Sketcher.Constraint("Coincident", 9, 2, 10, 1),
    Sketcher.Constraint("Coincident", 10, 2, 11, 1),
    Sketcher.Constraint("Coincident", 11, 2, 12, 1),
    Sketcher.Constraint("Coincident", 12, 2, 13, 1),
    Sketcher.Constraint("Tangent", 13, 2, 14, 1),
    Sketcher.Constraint("Tangent", 14, 2, 15, 1),
    Sketcher.Constraint("Tangent", 15, 2, 0, 1),
    Sketcher.Constraint("Vertical", 1),
    Sketcher.Constraint("Horizontal", 2),
    Sketcher.Constraint("Vertical", 3),
    Sketcher.Constraint("Horizontal", 4),
    Sketcher.Constraint("Vertical", 5),
    Sketcher.Constraint("Horizontal", 7),
    Sketcher.Constraint("Vertical", 9),
    Sketcher.Constraint("Horizontal", 10),
    Sketcher.Constraint("Vertical", 11),
    Sketcher.Constraint("Horizontal", 12),
    Sketcher.Constraint("Vertical", 13),
    Sketcher.Constraint("Horizontal", 15),
    Sketcher.Constraint("Equal", 0, 6),
    Sketcher.Constraint("Equal", 6, 8),
    Sketcher.Constraint("Equal", 8, 14),
    Sketcher.Constraint("Symmetric", 4, 2, 9, 2, -2),
    Sketcher.Constraint("Symmetric", 2, 2, 11, 2, -2),
    Sketcher.Constraint("Vertical", 0, 3, 6, 3),
    Sketcher.Constraint("Vertical", 8, 3, 14, 3),
    Sketcher.Constraint("Equal", 1, 5),
    Sketcher.Constraint("Radius", 0, Q("14.999999 mm")),
    Sketcher.Constraint("DistanceX", 7, 1, 7, 2, Q("214 mm")),
    Sketcher.Constraint("DistanceY", 1, 2, 1, 1, Q("3 mm")),
    Sketcher.Constraint("DistanceY", 3, 1, 3, 2, Q("86 mm")),
    Sketcher.Constraint("DistanceX", 2, 2, 2, 1, Q("25.5 mm")),
    Sketcher.Constraint("DistanceY", 0, 3, -1, 1, Q("159.999999 mm")),
])
pad6 = body6.newObject("PartDesign::Pad", "Pad005")
pad6.Profile = sketch9
pad6.Length = 12

doc.recompute()
